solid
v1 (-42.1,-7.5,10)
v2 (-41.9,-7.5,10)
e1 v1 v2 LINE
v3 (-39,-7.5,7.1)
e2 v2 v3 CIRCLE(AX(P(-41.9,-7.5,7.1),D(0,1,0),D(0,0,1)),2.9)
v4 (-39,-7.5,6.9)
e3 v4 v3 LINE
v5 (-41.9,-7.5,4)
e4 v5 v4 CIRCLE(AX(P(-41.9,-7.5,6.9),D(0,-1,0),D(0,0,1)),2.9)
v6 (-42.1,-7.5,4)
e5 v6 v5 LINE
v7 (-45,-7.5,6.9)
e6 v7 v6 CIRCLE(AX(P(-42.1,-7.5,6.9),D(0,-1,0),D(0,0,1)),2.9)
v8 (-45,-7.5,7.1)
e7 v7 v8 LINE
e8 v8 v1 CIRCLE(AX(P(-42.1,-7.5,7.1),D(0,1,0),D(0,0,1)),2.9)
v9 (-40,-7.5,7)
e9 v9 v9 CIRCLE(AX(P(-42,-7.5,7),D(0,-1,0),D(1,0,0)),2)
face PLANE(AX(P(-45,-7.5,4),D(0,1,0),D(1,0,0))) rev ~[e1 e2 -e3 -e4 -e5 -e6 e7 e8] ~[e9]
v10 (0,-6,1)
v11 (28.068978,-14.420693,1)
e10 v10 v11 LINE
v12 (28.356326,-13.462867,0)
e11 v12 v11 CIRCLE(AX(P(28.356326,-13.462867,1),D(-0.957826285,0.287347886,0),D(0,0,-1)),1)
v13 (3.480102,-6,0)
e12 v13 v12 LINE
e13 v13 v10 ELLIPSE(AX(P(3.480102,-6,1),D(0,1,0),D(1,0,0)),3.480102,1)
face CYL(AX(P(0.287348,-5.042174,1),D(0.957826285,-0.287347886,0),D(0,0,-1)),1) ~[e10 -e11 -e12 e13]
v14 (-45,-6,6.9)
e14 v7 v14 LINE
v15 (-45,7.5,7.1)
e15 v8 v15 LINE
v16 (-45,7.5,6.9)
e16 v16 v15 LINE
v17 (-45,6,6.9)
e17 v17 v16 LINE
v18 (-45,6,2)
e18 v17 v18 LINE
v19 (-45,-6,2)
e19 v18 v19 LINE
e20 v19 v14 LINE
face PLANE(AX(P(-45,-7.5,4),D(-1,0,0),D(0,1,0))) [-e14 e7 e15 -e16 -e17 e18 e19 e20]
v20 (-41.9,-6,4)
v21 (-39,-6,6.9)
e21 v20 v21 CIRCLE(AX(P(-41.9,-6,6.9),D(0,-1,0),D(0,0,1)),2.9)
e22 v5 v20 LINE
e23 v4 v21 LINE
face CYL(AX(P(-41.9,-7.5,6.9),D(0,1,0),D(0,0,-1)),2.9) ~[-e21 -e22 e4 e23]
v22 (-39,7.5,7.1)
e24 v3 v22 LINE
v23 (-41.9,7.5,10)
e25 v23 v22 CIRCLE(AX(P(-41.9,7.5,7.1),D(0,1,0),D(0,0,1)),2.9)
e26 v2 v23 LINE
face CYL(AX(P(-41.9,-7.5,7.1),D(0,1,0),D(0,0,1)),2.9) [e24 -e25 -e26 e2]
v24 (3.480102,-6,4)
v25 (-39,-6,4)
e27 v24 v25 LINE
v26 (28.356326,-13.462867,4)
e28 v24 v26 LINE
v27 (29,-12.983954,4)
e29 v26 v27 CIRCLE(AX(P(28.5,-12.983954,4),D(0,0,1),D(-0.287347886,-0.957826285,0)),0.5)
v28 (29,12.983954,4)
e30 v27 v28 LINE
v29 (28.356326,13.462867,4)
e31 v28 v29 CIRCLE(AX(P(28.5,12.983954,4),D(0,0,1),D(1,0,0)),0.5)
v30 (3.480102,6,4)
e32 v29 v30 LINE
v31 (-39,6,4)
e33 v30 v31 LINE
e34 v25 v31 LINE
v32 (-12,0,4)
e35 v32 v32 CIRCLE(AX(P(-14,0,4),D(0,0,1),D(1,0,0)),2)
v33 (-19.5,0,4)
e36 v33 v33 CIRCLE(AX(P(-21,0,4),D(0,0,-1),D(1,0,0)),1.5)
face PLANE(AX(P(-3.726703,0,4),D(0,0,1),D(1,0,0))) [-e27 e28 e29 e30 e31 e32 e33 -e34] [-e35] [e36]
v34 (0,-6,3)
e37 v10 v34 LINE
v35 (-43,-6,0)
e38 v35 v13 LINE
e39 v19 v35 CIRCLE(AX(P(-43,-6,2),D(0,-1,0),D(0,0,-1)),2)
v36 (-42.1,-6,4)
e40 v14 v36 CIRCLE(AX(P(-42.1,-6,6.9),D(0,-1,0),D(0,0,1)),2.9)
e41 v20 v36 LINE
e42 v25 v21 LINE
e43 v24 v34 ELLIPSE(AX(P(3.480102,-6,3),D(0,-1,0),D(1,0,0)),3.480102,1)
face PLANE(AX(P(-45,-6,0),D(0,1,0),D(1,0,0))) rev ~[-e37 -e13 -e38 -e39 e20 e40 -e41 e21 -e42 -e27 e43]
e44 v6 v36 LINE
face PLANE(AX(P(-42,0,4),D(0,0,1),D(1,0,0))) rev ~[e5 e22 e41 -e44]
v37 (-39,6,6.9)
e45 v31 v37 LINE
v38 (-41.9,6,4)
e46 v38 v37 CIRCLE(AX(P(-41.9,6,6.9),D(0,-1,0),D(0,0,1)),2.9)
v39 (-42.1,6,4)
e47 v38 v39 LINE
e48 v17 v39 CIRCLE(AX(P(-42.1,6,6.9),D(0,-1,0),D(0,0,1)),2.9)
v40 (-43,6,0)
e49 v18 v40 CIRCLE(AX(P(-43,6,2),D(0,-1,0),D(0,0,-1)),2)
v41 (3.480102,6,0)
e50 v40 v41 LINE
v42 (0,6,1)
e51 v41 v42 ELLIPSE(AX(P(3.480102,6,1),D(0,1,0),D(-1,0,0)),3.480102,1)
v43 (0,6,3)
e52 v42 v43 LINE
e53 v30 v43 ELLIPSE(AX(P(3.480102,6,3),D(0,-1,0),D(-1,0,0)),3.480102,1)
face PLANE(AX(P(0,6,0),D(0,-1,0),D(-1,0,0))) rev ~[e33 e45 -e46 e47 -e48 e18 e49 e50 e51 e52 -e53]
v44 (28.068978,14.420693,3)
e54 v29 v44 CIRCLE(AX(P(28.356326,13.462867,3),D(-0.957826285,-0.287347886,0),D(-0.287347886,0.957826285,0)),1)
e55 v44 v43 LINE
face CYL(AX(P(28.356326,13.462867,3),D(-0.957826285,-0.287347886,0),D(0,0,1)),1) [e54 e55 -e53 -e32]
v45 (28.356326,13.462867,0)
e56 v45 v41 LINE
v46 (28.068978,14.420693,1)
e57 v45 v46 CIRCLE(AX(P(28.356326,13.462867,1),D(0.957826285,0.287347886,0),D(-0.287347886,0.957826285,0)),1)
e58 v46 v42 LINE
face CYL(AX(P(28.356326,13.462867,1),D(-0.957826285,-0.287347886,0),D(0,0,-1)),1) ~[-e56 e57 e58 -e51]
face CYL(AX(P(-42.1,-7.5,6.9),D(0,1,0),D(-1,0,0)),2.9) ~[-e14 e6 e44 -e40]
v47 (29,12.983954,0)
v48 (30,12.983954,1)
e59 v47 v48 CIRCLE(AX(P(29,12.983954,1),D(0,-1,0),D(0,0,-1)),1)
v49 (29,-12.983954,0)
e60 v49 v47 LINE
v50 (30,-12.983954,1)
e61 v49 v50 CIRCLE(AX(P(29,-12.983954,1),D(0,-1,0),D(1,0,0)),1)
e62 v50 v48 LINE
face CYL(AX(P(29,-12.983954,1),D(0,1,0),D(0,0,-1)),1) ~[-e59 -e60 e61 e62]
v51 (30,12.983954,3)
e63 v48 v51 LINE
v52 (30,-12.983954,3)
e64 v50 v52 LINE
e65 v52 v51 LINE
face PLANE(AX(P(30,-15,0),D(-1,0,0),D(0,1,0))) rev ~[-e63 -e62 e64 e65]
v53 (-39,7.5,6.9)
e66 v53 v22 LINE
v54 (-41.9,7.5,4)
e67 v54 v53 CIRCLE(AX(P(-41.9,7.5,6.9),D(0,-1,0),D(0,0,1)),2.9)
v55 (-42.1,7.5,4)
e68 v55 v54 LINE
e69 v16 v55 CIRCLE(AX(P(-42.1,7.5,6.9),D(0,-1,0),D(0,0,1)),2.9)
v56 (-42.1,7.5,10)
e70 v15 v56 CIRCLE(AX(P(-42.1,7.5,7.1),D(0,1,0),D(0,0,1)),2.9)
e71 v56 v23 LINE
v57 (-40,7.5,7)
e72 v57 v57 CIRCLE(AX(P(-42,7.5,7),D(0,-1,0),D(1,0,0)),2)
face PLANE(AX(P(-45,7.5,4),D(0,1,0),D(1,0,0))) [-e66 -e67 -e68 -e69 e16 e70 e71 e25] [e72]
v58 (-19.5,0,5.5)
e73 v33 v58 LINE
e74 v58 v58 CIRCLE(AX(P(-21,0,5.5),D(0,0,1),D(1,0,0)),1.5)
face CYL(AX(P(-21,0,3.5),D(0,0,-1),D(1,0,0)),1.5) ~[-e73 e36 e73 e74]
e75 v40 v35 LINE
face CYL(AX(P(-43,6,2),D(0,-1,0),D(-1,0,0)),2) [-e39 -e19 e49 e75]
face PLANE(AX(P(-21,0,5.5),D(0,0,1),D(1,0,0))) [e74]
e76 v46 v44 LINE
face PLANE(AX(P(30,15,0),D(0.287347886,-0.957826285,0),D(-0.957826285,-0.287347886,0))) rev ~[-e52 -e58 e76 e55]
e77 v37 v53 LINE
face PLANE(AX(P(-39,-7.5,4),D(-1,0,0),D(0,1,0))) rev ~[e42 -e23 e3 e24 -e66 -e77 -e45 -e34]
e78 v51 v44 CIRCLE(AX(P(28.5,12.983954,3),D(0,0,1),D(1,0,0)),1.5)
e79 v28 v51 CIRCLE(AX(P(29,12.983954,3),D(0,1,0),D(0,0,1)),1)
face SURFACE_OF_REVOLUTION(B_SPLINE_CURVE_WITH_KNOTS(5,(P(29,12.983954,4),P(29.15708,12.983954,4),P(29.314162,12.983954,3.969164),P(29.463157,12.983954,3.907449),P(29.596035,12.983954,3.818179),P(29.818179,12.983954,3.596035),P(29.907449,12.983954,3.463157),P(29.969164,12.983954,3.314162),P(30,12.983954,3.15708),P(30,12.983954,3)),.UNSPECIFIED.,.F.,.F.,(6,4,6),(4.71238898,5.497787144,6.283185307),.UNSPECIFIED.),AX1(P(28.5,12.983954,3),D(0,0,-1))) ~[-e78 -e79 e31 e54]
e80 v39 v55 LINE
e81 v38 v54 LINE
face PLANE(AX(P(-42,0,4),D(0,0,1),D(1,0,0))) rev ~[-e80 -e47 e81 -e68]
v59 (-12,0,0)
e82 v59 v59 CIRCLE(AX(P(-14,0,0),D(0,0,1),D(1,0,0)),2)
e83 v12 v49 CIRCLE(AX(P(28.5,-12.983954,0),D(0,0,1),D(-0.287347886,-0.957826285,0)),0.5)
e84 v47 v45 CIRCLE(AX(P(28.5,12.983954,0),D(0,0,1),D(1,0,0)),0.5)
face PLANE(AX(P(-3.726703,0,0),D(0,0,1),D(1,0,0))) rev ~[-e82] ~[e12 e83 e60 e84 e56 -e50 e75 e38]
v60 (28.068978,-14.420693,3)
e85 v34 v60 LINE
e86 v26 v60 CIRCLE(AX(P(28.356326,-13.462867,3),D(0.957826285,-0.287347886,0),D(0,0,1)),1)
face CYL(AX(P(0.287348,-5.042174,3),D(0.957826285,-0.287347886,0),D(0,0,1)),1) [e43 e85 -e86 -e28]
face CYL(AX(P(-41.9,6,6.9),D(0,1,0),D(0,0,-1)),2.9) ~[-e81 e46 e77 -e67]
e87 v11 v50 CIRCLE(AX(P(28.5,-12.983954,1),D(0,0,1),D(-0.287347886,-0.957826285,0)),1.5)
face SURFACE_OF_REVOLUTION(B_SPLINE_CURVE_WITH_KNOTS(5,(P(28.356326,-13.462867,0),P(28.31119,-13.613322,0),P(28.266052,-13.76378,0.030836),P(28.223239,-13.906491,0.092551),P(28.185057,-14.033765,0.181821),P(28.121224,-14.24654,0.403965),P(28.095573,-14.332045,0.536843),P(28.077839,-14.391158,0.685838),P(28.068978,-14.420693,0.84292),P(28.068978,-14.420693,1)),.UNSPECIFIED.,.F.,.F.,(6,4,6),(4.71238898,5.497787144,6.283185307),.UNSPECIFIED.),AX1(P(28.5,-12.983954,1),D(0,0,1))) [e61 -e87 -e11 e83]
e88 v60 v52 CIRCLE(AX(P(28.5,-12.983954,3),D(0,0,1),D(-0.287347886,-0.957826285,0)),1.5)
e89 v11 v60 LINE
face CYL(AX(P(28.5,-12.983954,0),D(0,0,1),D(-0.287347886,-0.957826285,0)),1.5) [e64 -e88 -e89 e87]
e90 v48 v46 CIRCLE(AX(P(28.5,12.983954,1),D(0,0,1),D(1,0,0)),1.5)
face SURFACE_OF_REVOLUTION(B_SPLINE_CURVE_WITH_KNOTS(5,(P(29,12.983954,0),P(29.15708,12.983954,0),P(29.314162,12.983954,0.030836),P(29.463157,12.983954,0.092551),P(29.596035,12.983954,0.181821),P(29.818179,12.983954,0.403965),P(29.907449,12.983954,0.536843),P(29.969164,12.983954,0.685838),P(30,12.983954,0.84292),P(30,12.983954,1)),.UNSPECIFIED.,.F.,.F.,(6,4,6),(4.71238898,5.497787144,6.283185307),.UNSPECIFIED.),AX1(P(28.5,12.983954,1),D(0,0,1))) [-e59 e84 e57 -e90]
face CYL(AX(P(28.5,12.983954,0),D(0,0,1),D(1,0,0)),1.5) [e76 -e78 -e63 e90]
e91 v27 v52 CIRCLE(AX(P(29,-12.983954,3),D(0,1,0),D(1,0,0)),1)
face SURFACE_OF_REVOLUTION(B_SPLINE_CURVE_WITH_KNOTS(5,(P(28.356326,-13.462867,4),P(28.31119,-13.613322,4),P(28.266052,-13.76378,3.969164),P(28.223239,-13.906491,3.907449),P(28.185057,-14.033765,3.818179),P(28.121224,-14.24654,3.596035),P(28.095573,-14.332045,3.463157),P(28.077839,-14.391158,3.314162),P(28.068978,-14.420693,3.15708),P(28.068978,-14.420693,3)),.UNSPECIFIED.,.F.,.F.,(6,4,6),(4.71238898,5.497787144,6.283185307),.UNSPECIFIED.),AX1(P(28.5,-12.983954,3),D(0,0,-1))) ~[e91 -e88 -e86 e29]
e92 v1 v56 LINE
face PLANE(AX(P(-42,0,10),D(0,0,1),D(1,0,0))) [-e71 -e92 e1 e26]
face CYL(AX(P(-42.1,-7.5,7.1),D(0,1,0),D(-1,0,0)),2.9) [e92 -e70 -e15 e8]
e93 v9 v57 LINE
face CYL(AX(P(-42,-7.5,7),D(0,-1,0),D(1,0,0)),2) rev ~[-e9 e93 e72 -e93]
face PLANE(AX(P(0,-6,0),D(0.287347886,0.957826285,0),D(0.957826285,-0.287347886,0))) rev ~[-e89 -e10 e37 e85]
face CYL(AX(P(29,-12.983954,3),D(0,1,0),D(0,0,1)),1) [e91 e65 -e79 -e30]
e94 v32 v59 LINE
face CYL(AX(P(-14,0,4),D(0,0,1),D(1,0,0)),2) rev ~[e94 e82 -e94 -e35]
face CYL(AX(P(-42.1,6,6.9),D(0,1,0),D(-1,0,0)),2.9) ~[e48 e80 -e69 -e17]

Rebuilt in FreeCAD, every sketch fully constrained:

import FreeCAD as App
import Part
import Sketcher
Q = App.Units.Quantity


def edges_at(feature, points):
    """Names of the edges that pass closest to the given points."""
    edges = feature.Shape.Edges
    near = lambda p: min(range(len(edges)), key=lambda i: edges[i].distToShape(Part.Vertex(*p))[0])
    return sorted({f"Edge{near(p) + 1}" for p in points})

doc = App.newDocument("Part")
body = doc.addObject("PartDesign::Body", "Body")

sketch1 = doc.addObject("Sketcher::SketchObject", "Sketch")
body.addObject(sketch1)
sketch1.AttachmentSupport = (doc.XY_Plane, [""])
sketch1.MapMode = "FlatFace"
sketch1.addGeometry([
    Part.LineSegment(App.Vector(0, 6, 0), App.Vector(-45, 6, 0)),
    Part.LineSegment(App.Vector(-45, 6, 0), App.Vector(-45, -6, 0)),
    Part.LineSegment(App.Vector(-45, -6, 0), App.Vector(0, -6, 0)),
    Part.LineSegment(App.Vector(0, -6, 0), App.Vector(30, -15, 0)),
    Part.LineSegment(App.Vector(30, -15, 0), App.Vector(30, 15, 0)),
    Part.LineSegment(App.Vector(30, 15, 0), App.Vector(0, 6, 0)),
], False)
sketch1.addConstraint([
    Sketcher.Constraint("Coincident", 0, 2, 1, 1),
    Sketcher.Constraint("Coincident", 1, 2, 2, 1),
    Sketcher.Constraint("Coincident", 2, 2, 3, 1),
    Sketcher.Constraint("Coincident", 3, 2, 4, 1),
    Sketcher.Constraint("Coincident", 4, 2, 5, 1),
    Sketcher.Constraint("Coincident", 5, 2, 0, 1),
    Sketcher.Constraint("Horizontal", 0),
    Sketcher.Constraint("Vertical", 1),
    Sketcher.Constraint("Horizontal", 2),
    Sketcher.Constraint("Vertical", 4),
    Sketcher.Constraint("Symmetric", 2, 2, 5, 2, -1, 1),
    Sketcher.Constraint("PointOnObject", 2, 2, -2),
    Sketcher.Constraint("Equal", 3, 5),
    Sketcher.Constraint("DistanceX", 0, 2, 0, 1, Q("45 mm")),
    Sketcher.Constraint("DistanceY", 1, 2, 1, 1, Q("12 mm")),
    Sketcher.Constraint("DistanceY", 4, 1, 4, 2, Q("30 mm")),
    Sketcher.Constraint("DistanceX", -1, 1, 3, 2, Q("30 mm")),
])
pad1 = doc.addObject("PartDesign::Pad", "Pad")
body.addObject(pad1)
pad1.Profile = sketch1
pad1.Length = 4
doc.recompute()

fillet = doc.addObject("PartDesign::Fillet", "Fillet")
body.addObject(fillet)
fillet.Base = (pad1, edges_at(pad1, [(30, 15, 2), (30, -15, 2)]))
fillet.Radius = 1.5
doc.recompute()

fillet2 = doc.addObject("PartDesign::Fillet", "Fillet001")
body.addObject(fillet2)
fillet2.Base = (fillet, edges_at(fillet, [
    (14.034, 10.21, 4),
    (14.034, 10.21, 0),
    (29.395, 14.187, 0),
    (29.395, 14.187, 4),
    (30, 0, 4),
    (30, 0, 0),
    (14.034, -10.21, 4),
    (14.034, -10.21, 0),
    (29.395, -14.187, 0),
    (29.395, -14.187, 4),
]))
fillet2.Radius = 1

sketch2 = doc.addObject("Sketcher::SketchObject", "Sketch001")
body.addObject(sketch2)
sketch2.AttachmentSupport = (doc.XY_Plane, [""])
sketch2.MapMode = "FlatFace"
sketch2.AttachmentOffset = App.Placement(App.Vector(0, 0, 3.5), App.Rotation())
sketch2.addGeometry(Part.Circle(App.Vector(-21, 0, 0), App.Vector(0, 0, 1), 1.5), False)
sketch2.addConstraint([
    Sketcher.Constraint("PointOnObject", 0, 3, -1),
    Sketcher.Constraint("Diameter", 0, Q("3 mm")),
    Sketcher.Constraint("DistanceX", 0, 3, -1, 1, Q("21 mm")),
])
pad2 = doc.addObject("PartDesign::Pad", "Pad001")
body.addObject(pad2)
pad2.Profile = sketch2
pad2.Length = 2
doc.recompute()

fillet3 = doc.addObject("PartDesign::Fillet", "Fillet002")
body.addObject(fillet3)
fillet3.Base = (pad2, edges_at(pad2, [(-45, 0, 0)]))
fillet3.Radius = 2

sketch3 = doc.addObject("Sketcher::SketchObject", "Sketch002")
body.addObject(sketch3)
sketch3.AttachmentSupport = (doc.XY_Plane, [""])
sketch3.MapMode = "FlatFace"
sketch3.AttachmentOffset = App.Placement(App.Vector(0, 0, 4), App.Rotation())
sketch3.addGeometry([
    Part.LineSegment(App.Vector(-45, 7.5, 0), App.Vector(-45, -7.5, 0)),
    Part.LineSegment(App.Vector(-45, -7.5, 0), App.Vector(-39, -7.5, 0)),
    Part.LineSegment(App.Vector(-39, -7.5, 0), App.Vector(-39, 7.5, 0)),
    Part.LineSegment(App.Vector(-39, 7.5, 0), App.Vector(-45, 7.5, 0)),
], False)
sketch3.addConstraint([
    Sketcher.Constraint("Coincident", 0, 2, 1, 1),
    Sketcher.Constraint("Coincident", 1, 2, 2, 1),
    Sketcher.Constraint("Coincident", 2, 2, 3, 1),
    Sketcher.Constraint("Coincident", 3, 2, 0, 1),
    Sketcher.Constraint("Vertical", 0),
    Sketcher.Constraint("Horizontal", 1),
    Sketcher.Constraint("Vertical", 2),
    Sketcher.Constraint("Horizontal", 3),
    Sketcher.Constraint("DistanceX", 1, 1, 1, 2, Q("6 mm")),
    Sketcher.Constraint("DistanceY", 0, 2, 0, 1, Q("15 mm")),
    Sketcher.Constraint("DistanceX", 0, 2, -1, 1, Q("45 mm")),
    Sketcher.Constraint("DistanceY", 0, 2, -1, 1, Q("7.5 mm")),
])
pad3 = doc.addObject("PartDesign::Pad", "Pad002")
body.addObject(pad3)
pad3.Profile = sketch3
pad3.Length = 6

sketch4 = doc.addObject("Sketcher::SketchObject", "Sketch003")
body.addObject(sketch4)
sketch4.AttachmentSupport = (doc.XZ_Plane, [""])
sketch4.MapMode = "FlatFace"
sketch4.AttachmentOffset = App.Placement(App.Vector(0, 0, 7.5), App.Rotation())
sketch4.addGeometry(Part.Circle(App.Vector(-42, 7, 0), App.Vector(0, 0, 1), 2), False)
sketch4.addConstraint([
    Sketcher.Constraint("Diameter", 0, Q("4 mm")),
    Sketcher.Constraint("DistanceX", 0, 3, -1, 1, Q("42 mm")),
    Sketcher.Constraint("DistanceY", -1, 1, 0, 3, Q("7 mm")),
])
pocket1 = doc.addObject("PartDesign::Pocket", "Pocket")
body.addObject(pocket1)
pocket1.Profile = sketch4
pocket1.Type = "ThroughAll"
doc.recompute()

fillet4 = doc.addObject("PartDesign::Fillet", "Fillet003")
body.addObject(fillet4)
fillet4.Base = (pocket1, edges_at(pocket1, [
    (-45, 0, 10),
    (-39, 0, 10),
    (-45, -6.75, 4),
    (-39, -6.75, 4),
    (-45, 6.75, 4),
    (-39, 6.75, 4),
]))
fillet4.Radius = 2.9

sketch5 = doc.addObject("Sketcher::SketchObject", "Sketch004")
body.addObject(sketch5)
sketch5.AttachmentSupport = (doc.XY_Plane, [""])
sketch5.MapMode = "FlatFace"
sketch5.AttachmentOffset = App.Placement(App.Vector(0, 0, 4), App.Rotation())
sketch5.addGeometry(Part.Circle(App.Vector(-14, 0, 0), App.Vector(0, 0, 1), 2), False)
sketch5.addConstraint([
    Sketcher.Constraint("PointOnObject", 0, 3, -1),
    Sketcher.Constraint("Diameter", 0, Q("4 mm")),
    Sketcher.Constraint("DistanceX", 0, 3, -1, 1, Q("14 mm")),
])
pocket2 = doc.addObject("PartDesign::Pocket", "Pocket001")
body.addObject(pocket2)
pocket2.Profile = sketch5
pocket2.Type = "ThroughAll"

doc.recompute()
